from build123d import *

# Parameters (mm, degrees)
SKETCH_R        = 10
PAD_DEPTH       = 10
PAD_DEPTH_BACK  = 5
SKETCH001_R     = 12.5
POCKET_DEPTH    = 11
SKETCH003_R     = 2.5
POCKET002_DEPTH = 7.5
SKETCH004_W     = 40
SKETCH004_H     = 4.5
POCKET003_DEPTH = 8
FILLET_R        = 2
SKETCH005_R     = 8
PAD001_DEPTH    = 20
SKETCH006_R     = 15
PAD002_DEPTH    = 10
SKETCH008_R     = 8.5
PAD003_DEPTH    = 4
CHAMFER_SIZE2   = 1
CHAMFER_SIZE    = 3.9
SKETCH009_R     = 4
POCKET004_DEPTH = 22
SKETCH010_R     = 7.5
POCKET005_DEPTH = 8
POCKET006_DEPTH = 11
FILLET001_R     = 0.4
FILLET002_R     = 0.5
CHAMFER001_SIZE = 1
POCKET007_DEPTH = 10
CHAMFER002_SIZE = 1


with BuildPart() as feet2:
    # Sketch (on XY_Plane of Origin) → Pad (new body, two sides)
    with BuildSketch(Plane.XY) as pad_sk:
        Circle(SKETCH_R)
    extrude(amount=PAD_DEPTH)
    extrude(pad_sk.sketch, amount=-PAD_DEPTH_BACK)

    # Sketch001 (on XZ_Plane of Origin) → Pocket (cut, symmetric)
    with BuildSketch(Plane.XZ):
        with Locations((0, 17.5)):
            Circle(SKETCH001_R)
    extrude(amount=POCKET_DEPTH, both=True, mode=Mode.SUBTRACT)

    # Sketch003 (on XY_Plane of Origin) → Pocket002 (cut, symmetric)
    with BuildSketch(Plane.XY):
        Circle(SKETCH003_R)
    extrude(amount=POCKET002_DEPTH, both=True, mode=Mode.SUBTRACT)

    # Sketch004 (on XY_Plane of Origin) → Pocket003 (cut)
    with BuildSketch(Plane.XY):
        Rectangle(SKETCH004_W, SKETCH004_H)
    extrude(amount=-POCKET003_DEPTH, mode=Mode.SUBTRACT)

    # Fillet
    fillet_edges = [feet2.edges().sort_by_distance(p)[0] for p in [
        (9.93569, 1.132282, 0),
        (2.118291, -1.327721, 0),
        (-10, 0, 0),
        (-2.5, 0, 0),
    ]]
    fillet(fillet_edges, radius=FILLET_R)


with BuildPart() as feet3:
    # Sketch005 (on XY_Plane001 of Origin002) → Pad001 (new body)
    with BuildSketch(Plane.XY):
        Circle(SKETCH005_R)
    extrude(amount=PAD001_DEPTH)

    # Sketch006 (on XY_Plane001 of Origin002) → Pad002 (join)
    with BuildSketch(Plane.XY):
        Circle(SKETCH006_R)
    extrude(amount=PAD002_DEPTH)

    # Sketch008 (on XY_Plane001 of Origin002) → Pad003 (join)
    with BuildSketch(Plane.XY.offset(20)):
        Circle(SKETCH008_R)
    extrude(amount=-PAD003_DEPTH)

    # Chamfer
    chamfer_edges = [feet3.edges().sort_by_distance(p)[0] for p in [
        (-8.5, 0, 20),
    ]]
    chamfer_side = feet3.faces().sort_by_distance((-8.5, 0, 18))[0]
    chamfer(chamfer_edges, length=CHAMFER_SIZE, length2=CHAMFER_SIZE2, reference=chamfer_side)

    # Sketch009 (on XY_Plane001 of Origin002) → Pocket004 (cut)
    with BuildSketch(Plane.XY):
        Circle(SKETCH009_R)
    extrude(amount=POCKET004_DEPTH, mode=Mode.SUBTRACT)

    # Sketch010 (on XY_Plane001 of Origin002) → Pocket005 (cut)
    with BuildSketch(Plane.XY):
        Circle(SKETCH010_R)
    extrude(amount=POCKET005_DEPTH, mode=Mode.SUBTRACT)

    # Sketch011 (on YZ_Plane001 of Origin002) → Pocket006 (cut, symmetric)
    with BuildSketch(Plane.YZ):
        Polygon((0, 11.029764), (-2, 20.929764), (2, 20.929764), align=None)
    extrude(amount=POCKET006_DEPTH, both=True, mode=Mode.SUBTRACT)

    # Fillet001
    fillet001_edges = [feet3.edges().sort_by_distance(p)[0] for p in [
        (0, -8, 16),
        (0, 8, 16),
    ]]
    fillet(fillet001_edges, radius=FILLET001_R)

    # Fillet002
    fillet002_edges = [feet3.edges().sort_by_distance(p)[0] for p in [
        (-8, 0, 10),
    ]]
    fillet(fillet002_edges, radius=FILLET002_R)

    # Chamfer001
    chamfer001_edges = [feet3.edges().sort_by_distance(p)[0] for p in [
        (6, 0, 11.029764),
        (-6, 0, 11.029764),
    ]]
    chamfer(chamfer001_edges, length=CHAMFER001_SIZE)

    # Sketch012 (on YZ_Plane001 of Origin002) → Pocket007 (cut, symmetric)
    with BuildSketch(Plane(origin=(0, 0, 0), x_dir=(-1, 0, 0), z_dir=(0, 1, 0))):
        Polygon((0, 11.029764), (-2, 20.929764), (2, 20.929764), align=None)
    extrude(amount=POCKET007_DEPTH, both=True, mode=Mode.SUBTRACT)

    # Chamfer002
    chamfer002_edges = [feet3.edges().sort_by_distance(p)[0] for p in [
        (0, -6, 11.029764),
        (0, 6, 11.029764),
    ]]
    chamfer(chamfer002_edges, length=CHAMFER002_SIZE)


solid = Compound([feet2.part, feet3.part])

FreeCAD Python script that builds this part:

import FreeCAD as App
import Part
import Sketcher
from FreeCAD import Vector


def edges_at(feature, points):
    """Names of the edges that pass closest to the given points."""
    edges = feature.Shape.Edges
    near = lambda p: min(range(len(edges)), key=lambda i: edges[i].distToShape(Part.Vertex(*p))[0])
    return sorted({f"Edge{near(p) + 1}" for p in points})

doc = App.newDocument("Part")
body = doc.addObject("PartDesign::Body", "Body")

sketch1 = doc.addObject("Sketcher::SketchObject", "Sketch")
body.addObject(sketch1)
sketch1.AttachmentSupport = (doc.XY_Plane, [""])
sketch1.MapMode = "FlatFace"
sketch1.addGeometry(Part.Circle(Vector(0, 0, 0), Vector(0, 0, 1), 10), False)
sketch1.addConstraint([
    Sketcher.Constraint("Coincident", 0, 3, -1, 1),
    Sketcher.Constraint("Diameter", 0, 20.0),
])
pad1 = doc.addObject("PartDesign::Pad", "Pad")
body.addObject(pad1)
pad1.Profile = sketch1
pad1.Type = "TwoLengths"
pad1.Length = 10
pad1.Length2 = 5

sketch2 = doc.addObject("Sketcher::SketchObject", "Sketch001")
body.addObject(sketch2)
sketch2.AttachmentSupport = (doc.XZ_Plane, [""])
sketch2.MapMode = "FlatFace"
sketch2.addGeometry(Part.Circle(Vector(0, 17.5, 0), Vector(0, 0, 1), 12.5), False)
sketch2.addConstraint([
    Sketcher.Constraint("PointOnObject", 0, 3, -2),
    Sketcher.Constraint("Diameter", 0, 25.0),
    Sketcher.Constraint("DistanceY", -1, 1, 0, 3, 17.5),
])
pocket1 = doc.addObject("PartDesign::Pocket", "Pocket")
body.addObject(pocket1)
pocket1.Profile = sketch2
pocket1.Length = 22
pocket1.Midplane = True

sketch3 = doc.addObject("Sketcher::SketchObject", "Sketch002")
body.addObject(sketch3)
sketch3.AttachmentSupport = (doc.XY_Plane, [""])
sketch3.MapMode = "FlatFace"
sketch3.addGeometry(Part.Circle(Vector(0, 0, 0), Vector(0, 0, 1), 2.5), False)
sketch3.addConstraint([
    Sketcher.Constraint("Coincident", 0, 3, -1, 1),
    Sketcher.Constraint("Diameter", 0, 5.0),
])
pocket2 = doc.addObject("PartDesign::Pocket", "Pocket001")
body.addObject(pocket2)
pocket2.Profile = sketch3
pocket2.Length = 15
pocket2.Midplane = True

sketch4 = doc.addObject("Sketcher::SketchObject", "Sketch003")
body.addObject(sketch4)
sketch4.AttachmentSupport = (doc.XY_Plane, [""])
sketch4.MapMode = "FlatFace"
sketch4.addGeometry([
    Part.LineSegment(Vector(-20, 2.25, 0), Vector(-20, -2.25, 0)),
    Part.LineSegment(Vector(-20, -2.25, 0), Vector(20, -2.25, 0)),
    Part.LineSegment(Vector(20, -2.25, 0), Vector(20, 2.25, 0)),
    Part.LineSegment(Vector(20, 2.25, 0), Vector(-20, 2.25, 0)),
], False)
sketch4.addConstraint([
    Sketcher.Constraint("Coincident", 0, 2, 1, 1),
    Sketcher.Constraint("Coincident", 1, 2, 2, 1),
    Sketcher.Constraint("Coincident", 2, 2, 3, 1),
    Sketcher.Constraint("Coincident", 3, 2, 0, 1),
    Sketcher.Constraint("Vertical", 0),
    Sketcher.Constraint("Horizontal", 1),
    Sketcher.Constraint("Vertical", 2),
    Sketcher.Constraint("Horizontal", 3),
    Sketcher.Constraint("Symmetric", 0, 2, 2, 2, -1, 1),
    Sketcher.Constraint("DistanceX", 1, 1, 1, 2, 40.0),
    Sketcher.Constraint("DistanceY", 0, 2, 0, 1, 4.5),
])
pocket3 = doc.addObject("PartDesign::Pocket", "Pocket002")
body.addObject(pocket3)
pocket3.Profile = sketch4
pocket3.Length = 8
doc.recompute()

fillet = doc.addObject("PartDesign::Fillet", "Fillet")
body.addObject(fillet)
fillet.Base = (pocket3, edges_at(pocket3, [
    (9.936, 1.132, 0),
    (2.118, -1.328, 0),
    (-10, 0, 0),
    (-2.5, 0, 0),
]))
fillet.Radius = 2
body2 = doc.addObject("PartDesign::Body", "Body001")

sketch5 = doc.addObject("Sketcher::SketchObject", "Sketch004")
body2.addObject(sketch5)
sketch5.AttachmentSupport = (doc.getObject("XY_Plane001"), [""])
sketch5.MapMode = "FlatFace"
sketch5.addGeometry(Part.Circle(Vector(0, 0, 0), Vector(0, 0, 1), 8), False)
sketch5.addConstraint([
    Sketcher.Constraint("Coincident", 0, 3, -1, 1),
    Sketcher.Constraint("Diameter", 0, 16.0),
])
pad2 = doc.addObject("PartDesign::Pad", "Pad001")
body2.addObject(pad2)
pad2.Profile = sketch5
pad2.Length = 20

sketch6 = doc.addObject("Sketcher::SketchObject", "Sketch005")
body2.addObject(sketch6)
sketch6.AttachmentSupport = (doc.getObject("XY_Plane001"), [""])
sketch6.MapMode = "FlatFace"
sketch6.addGeometry(Part.Circle(Vector(0, 0, 0), Vector(0, 0, 1), 15), False)
sketch6.addConstraint([
    Sketcher.Constraint("Coincident", 0, 3, -1, 1),
    Sketcher.Constraint("Diameter", 0, 30.0),
])
pad3 = doc.addObject("PartDesign::Pad", "Pad002")
body2.addObject(pad3)
pad3.Profile = sketch6
pad3.Length = 10

sketch7 = doc.addObject("Sketcher::SketchObject", "Sketch006")
body2.addObject(sketch7)
sketch7.AttachmentSupport = (doc.getObject("XY_Plane001"), [""])
sketch7.MapMode = "FlatFace"
sketch7.AttachmentOffset = App.Placement(Vector(0, 0, 20), App.Rotation())
sketch7.addGeometry(Part.Circle(Vector(0, 0, 0), Vector(0, 0, 1), 8.5), False)
sketch7.addConstraint([
    Sketcher.Constraint("Coincident", 0, 3, -1, 1),
    Sketcher.Constraint("Diameter", 0, 17.0),
])
pad4 = doc.addObject("PartDesign::Pad", "Pad003")
body2.addObject(pad4)
pad4.Profile = sketch7
pad4.Length = 4
pad4.Reversed = True
doc.recompute()

chamfer = doc.addObject("PartDesign::Chamfer", "Chamfer")
body2.addObject(chamfer)
chamfer.Base = (pad4, edges_at(pad4, [(-8.5, 0, 20)]))
chamfer.ChamferType = "Two distances"
chamfer.Size = 3.9
chamfer.Size2 = 1

sketch8 = doc.addObject("Sketcher::SketchObject", "Sketch007")
body2.addObject(sketch8)
sketch8.AttachmentSupport = (doc.getObject("XY_Plane001"), [""])
sketch8.MapMode = "FlatFace"
sketch8.addGeometry(Part.Circle(Vector(0, 0, 0), Vector(0, 0, 1), 4), False)
sketch8.addConstraint([
    Sketcher.Constraint("Coincident", 0, 3, -1, 1),
    Sketcher.Constraint("Diameter", 0, 8.0),
])
pocket4 = doc.addObject("PartDesign::Pocket", "Pocket003")
body2.addObject(pocket4)
pocket4.Profile = sketch8
pocket4.Length = 22
pocket4.Reversed = True

sketch9 = doc.addObject("Sketcher::SketchObject", "Sketch008")
body2.addObject(sketch9)
sketch9.AttachmentSupport = (doc.getObject("XY_Plane001"), [""])
sketch9.MapMode = "FlatFace"
sketch9.addGeometry(Part.Circle(Vector(0, 0, 0), Vector(0, 0, 1), 7.5), False)
sketch9.addConstraint([
    Sketcher.Constraint("Coincident", 0, 3, -1, 1),
    Sketcher.Constraint("Diameter", 0, 15.0),
])
pocket5 = doc.addObject("PartDesign::Pocket", "Pocket004")
body2.addObject(pocket5)
pocket5.Profile = sketch9
pocket5.Length = 8
pocket5.Reversed = True

sketch10 = doc.addObject("Sketcher::SketchObject", "Sketch009")
body2.addObject(sketch10)
sketch10.AttachmentSupport = (doc.getObject("YZ_Plane001"), [""])
sketch10.MapMode = "FlatFace"
sketch10.addGeometry([
    Part.LineSegment(Vector(-2, 20.929764, 0), Vector(0, 11.029764, 0)),
    Part.LineSegment(Vector(0, 11.029764, 0), Vector(2, 20.929764, 0)),
    Part.LineSegment(Vector(2, 20.929764, 0), Vector(-2, 20.929764, 0)),
], False)
sketch10.addConstraint([
    Sketcher.Constraint("Coincident", 0, 2, 1, 1),
    Sketcher.Constraint("Coincident", 1, 2, 2, 1),
    Sketcher.Constraint("Coincident", 2, 2, 0, 1),
    Sketcher.Constraint("Horizontal", 2),
    Sketcher.Constraint("PointOnObject", 0, 2, -2),
    Sketcher.Constraint("Equal", 0, 1),
    Sketcher.Constraint("DistanceX", 2, 2, 2, 1, 4.0),
    Sketcher.Constraint("Distance", 0, 10.1),
    Sketcher.Constraint("DistanceY", -1, 1, 0, 2, 11.029764),
])
pocket6 = doc.addObject("PartDesign::Pocket", "Pocket005")
body2.addObject(pocket6)
pocket6.Profile = sketch10
pocket6.Length = 22
pocket6.Midplane = True
doc.recompute()

fillet2 = doc.addObject("PartDesign::Fillet", "Fillet001")
body2.addObject(fillet2)
fillet2.Base = (pocket6, edges_at(pocket6, [(0, -8, 16), (0, 8, 16)]))
fillet2.Radius = 0.4
doc.recompute()

fillet3 = doc.addObject("PartDesign::Fillet", "Fillet002")
body2.addObject(fillet3)
fillet3.Base = (fillet2, edges_at(fillet2, [(-8, 0, 10)]))
fillet3.Radius = 0.5
doc.recompute()

chamfer2 = doc.addObject("PartDesign::Chamfer", "Chamfer001")
body2.addObject(chamfer2)
chamfer2.Base = (fillet3, edges_at(fillet3, [(6, 0, 11.03), (-6, 0, 11.03)]))
chamfer2.Size = 1

sketch11 = doc.addObject("Sketcher::SketchObject", "Sketch010")
body2.addObject(sketch11)
sketch11.AttachmentSupport = (doc.getObject("XZ_Plane001"), [""])
sketch11.MapMode = "FlatFace"
sketch11.addGeometry([
    Part.LineSegment(Vector(2, 20.929764, 0), Vector(0, 11.029764, 0)),
    Part.LineSegment(Vector(0, 11.029764, 0), Vector(-2, 20.929764, 0)),
    Part.LineSegment(Vector(-2, 20.929764, 0), Vector(2, 20.929764, 0)),
], False)
sketch11.addConstraint([
    Sketcher.Constraint("Coincident", 0, 2, 1, 1),
    Sketcher.Constraint("Coincident", 1, 2, 2, 1),
    Sketcher.Constraint("Coincident", 2, 2, 0, 1),
    Sketcher.Constraint("Horizontal", 2),
    Sketcher.Constraint("PointOnObject", 0, 2, -2),
    Sketcher.Constraint("Equal", 0, 1),
    Sketcher.Constraint("DistanceX", 2, 1, 2, 2, 4.0),
    Sketcher.Constraint("Distance", 0, 10.1),
    Sketcher.Constraint("DistanceY", -1, 1, 0, 2, 11.029764),
])
pocket7 = doc.addObject("PartDesign::Pocket", "Pocket006")
body2.addObject(pocket7)
pocket7.Profile = sketch11
pocket7.Length = 20
pocket7.Midplane = True
doc.recompute()

chamfer3 = doc.addObject("PartDesign::Chamfer", "Chamfer002")
body2.addObject(chamfer3)
chamfer3.Base = (pocket7, edges_at(pocket7, [(0, -6, 11.03), (0, 6, 11.03)]))
chamfer3.Size = 1

doc.recompute()
